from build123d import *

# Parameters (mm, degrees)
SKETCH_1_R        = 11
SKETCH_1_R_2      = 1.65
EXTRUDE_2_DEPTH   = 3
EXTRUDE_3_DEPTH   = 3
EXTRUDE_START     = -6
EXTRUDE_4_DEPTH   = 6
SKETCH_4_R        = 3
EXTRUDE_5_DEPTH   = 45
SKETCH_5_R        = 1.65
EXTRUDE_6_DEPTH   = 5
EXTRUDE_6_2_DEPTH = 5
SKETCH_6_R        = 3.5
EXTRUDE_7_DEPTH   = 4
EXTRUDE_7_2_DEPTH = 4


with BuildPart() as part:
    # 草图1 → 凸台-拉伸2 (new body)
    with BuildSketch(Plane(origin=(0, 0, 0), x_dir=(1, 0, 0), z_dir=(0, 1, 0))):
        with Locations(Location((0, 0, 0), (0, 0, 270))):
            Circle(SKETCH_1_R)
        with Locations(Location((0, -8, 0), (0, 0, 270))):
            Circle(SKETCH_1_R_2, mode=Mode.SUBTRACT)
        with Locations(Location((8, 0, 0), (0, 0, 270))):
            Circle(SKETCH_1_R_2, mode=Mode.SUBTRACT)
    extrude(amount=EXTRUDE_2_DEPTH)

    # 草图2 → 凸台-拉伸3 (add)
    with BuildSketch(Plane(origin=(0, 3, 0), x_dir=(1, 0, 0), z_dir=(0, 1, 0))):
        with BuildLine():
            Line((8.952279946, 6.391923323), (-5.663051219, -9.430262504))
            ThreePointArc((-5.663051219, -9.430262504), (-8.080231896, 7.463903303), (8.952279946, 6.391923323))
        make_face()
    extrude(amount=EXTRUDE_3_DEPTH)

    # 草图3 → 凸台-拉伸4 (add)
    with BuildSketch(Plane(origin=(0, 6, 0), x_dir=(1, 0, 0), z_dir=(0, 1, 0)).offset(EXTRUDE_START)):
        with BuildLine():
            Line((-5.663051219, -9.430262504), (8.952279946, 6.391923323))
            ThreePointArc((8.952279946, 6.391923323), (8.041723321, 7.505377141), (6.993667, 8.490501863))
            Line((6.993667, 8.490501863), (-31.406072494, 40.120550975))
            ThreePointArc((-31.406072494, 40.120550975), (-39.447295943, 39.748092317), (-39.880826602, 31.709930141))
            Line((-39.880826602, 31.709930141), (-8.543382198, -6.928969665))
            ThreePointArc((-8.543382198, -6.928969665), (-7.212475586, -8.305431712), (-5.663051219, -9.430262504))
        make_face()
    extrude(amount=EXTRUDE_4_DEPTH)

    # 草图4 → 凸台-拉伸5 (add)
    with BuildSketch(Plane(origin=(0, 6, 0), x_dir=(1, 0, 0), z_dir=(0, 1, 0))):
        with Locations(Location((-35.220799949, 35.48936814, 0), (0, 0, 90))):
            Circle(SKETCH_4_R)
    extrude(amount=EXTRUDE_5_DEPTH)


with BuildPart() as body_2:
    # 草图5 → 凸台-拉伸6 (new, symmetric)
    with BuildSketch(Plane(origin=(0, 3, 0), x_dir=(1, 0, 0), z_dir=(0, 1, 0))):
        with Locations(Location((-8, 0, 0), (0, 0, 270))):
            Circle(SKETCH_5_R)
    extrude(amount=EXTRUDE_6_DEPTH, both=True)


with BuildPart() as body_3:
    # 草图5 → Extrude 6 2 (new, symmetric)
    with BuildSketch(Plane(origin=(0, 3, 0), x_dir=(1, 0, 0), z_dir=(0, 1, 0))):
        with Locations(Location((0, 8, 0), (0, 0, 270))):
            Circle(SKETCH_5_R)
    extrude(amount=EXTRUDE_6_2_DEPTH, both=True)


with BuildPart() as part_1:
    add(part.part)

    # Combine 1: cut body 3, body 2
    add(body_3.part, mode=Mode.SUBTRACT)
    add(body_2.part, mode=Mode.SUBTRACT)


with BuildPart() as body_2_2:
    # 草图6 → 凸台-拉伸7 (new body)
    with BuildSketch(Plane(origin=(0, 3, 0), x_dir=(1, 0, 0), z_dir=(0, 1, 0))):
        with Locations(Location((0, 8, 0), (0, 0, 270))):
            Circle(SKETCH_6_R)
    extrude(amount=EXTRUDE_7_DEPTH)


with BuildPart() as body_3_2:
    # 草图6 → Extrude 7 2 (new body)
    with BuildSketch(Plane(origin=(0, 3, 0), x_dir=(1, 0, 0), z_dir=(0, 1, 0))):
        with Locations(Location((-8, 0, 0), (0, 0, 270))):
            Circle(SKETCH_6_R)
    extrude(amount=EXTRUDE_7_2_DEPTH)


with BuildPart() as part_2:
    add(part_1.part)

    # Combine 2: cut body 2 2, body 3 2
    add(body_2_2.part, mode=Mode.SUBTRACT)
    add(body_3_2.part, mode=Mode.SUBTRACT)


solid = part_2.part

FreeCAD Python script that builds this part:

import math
import FreeCAD as App
import Part
import Sketcher
from FreeCAD import Vector
Q = App.Units.Quantity

doc = App.newDocument("Part")
body = doc.addObject("PartDesign::Body", "Body")

# Sketch on XZ plane
sketch1 = body.newObject("Sketcher::SketchObject", "Sketch")
sketch1.AttachmentSupport = (doc.getObject("XZ_Plane"), [""])
sketch1.MapMode = "FlatFace"
sketch1.addGeometry([
    Part.Circle(Vector(0, 0, 0), Vector(0, 0, 1), 11),
    Part.Circle(Vector(0, 8, 0), Vector(0, 0, 1), 1.6),
    Part.Circle(Vector(8, 0, 0), Vector(0, 0, 1), 1.6),
], False)
sketch1.addConstraint([
    Sketcher.Constraint("Coincident", 0, 3, -1, 1),
    Sketcher.Constraint("Equal", 1, 2),
    Sketcher.Constraint("PointOnObject", 1, 3, -2),
    Sketcher.Constraint("PointOnObject", 2, 3, -1),
    Sketcher.Constraint("Diameter", 0, Q("22 mm")),
    Sketcher.Constraint("Diameter", 1, Q("3.3 mm")),
    Sketcher.Constraint("DistanceY", -1, 1, 1, 3, Q("8 mm")),
    Sketcher.Constraint("DistanceX", -1, 1, 2, 3, Q("8 mm")),
])
pad1 = body.newObject("PartDesign::Pad", "Pad")
pad1.Profile = sketch1
pad1.Length = 3
pad1.Reversed = True

# Sketch on XZ plane
sketch2 = body.newObject("Sketcher::SketchObject", "Sketch001")
sketch2.AttachmentSupport = (doc.getObject("XZ_Plane"), [""])
sketch2.MapMode = "FlatFace"
sketch2.AttachmentOffset = App.Placement(Vector(0, 0, -3), App.Rotation())
sketch2.addGeometry([
    Part.LineSegment(Vector(-6, 9, 0), Vector(9, -6, 0)),
    Part.ArcOfCircle(Part.Circle(Vector(0, 0, 0), Vector(0, 0, 1), 11), math.radians(121), math.radians(324)),
], False)
sketch2.addConstraint([
    Sketcher.Constraint("Coincident", 0, 1, 1, 1),
    Sketcher.Constraint("Coincident", 1, 2, 0, 2),
    Sketcher.Constraint("Coincident", 1, 3, -1, 1),
    Sketcher.Constraint("Radius", 1, Q("11 mm")),
    Sketcher.Constraint("DistanceX", 0, 1, -1, 1, Q("5.663051 mm")),
    Sketcher.Constraint("DistanceX", -1, 1, 1, 2, Q("8.95228 mm")),
])
pad2 = body.newObject("PartDesign::Pad", "Pad001")
pad2.Profile = sketch2
pad2.Length = 3
pad2.Reversed = True

# Sketch on XZ plane
sketch3 = body.newObject("Sketcher::SketchObject", "Sketch002")
sketch3.AttachmentSupport = (doc.getObject("XZ_Plane"), [""])
sketch3.MapMode = "FlatFace"
sketch3.addGeometry([
    Part.LineSegment(Vector(-5.7, 9.4, 0), Vector(9, -6.4, 0)),  # 0
    Part.ArcOfCircle(Part.Circle(Vector(0, 0, 0), Vector(0, 0, 1), 11), math.radians(-50.52), math.radians(-35.53)),  # 1
    Part.LineSegment(Vector(7, -8.5, 0), Vector(-31.4, -40.1, 0)),  # 2
    Part.ArcOfCircle(Part.Circle(Vector(-35.2, -35.5, 0), Vector(0, 0, 1), 6), math.radians(141), math.radians(309)),  # 3
    Part.LineSegment(Vector(-39.9, -31.7, 0), Vector(-8.5, 6.9, 0)),  # 4
    Part.ArcOfCircle(Part.Circle(Vector(0, 0, 0), Vector(0, 0, 1), 11), math.radians(120.99), math.radians(140.96)),  # 5
], False)
sketch3.addConstraint([
    Sketcher.Constraint("Coincident", 0, 2, 1, 2),
    Sketcher.Constraint("Tangent", 1, 1, 2, 1),
    Sketcher.Constraint("Tangent", 2, 2, 3, 2),
    Sketcher.Constraint("Tangent", 3, 1, 4, 1),
    Sketcher.Constraint("Tangent", 4, 2, 5, 2),
    Sketcher.Constraint("Coincident", 5, 1, 0, 1),
    Sketcher.Constraint("Coincident", 1, 3, -1, 1),
    Sketcher.Constraint("Coincident", 5, 3, -1, 1),
    Sketcher.Constraint("Equal", 1, 5),
    Sketcher.Constraint("Radius", 1, Q("11 mm")),
    Sketcher.Constraint("Radius", 3, Q("6 mm")),
    Sketcher.Constraint("DistanceX", 3, 3, -1, 1, Q("35.2208 mm")),
    Sketcher.Constraint("DistanceY", 1, 1, -1, 1, Q("8.490502 mm")),
    Sketcher.Constraint("DistanceX", -1, 1, 0, 2, Q("8.95228 mm")),
    Sketcher.Constraint("DistanceX", 5, 1, -1, 1, Q("5.663051 mm")),
])
pad3 = body.newObject("PartDesign::Pad", "Pad002")
pad3.Profile = sketch3
pad3.Length = 6
pad3.Reversed = True

# Sketch on XZ plane
sketch4 = body.newObject("Sketcher::SketchObject", "Sketch003")
sketch4.AttachmentSupport = (doc.getObject("XZ_Plane"), [""])
sketch4.MapMode = "FlatFace"
sketch4.AttachmentOffset = App.Placement(Vector(0, 0, -6), App.Rotation())
sketch4.addGeometry(Part.Circle(Vector(-35.2, -35.5, 0), Vector(0, 0, 1), 3), False)
sketch4.addConstraint([
    Sketcher.Constraint("Diameter", 0, Q("6 mm")),
    Sketcher.Constraint("DistanceX", 0, 3, -1, 1, Q("35.2208 mm")),
    Sketcher.Constraint("DistanceY", 0, 3, -1, 1, Q("35.489368 mm")),
])
pad4 = body.newObject("PartDesign::Pad", "Pad003")
pad4.Profile = sketch4
pad4.Length = 45
pad4.Reversed = True
body2 = doc.addObject("PartDesign::Body", "Body001")

# Sketch on XZ plane
sketch5 = body2.newObject("Sketcher::SketchObject", "Sketch004")
sketch5.AttachmentSupport = (doc.getObject("XZ_Plane001"), [""])
sketch5.MapMode = "FlatFace"
sketch5.AttachmentOffset = App.Placement(Vector(0, 0, -3), App.Rotation())
sketch5.addGeometry(Part.Circle(Vector(-8, 0, 0), Vector(0, 0, 1), 1.6), False)
sketch5.addConstraint([
    Sketcher.Constraint("PointOnObject", 0, 3, -1),
    Sketcher.Constraint("Diameter", 0, Q("3.3 mm")),
    Sketcher.Constraint("DistanceX", 0, 3, -1, 1, Q("8 mm")),
])
pad5 = body2.newObject("PartDesign::Pad", "Pad004")
pad5.Profile = sketch5
pad5.Length = 10
pad5.Midplane = True
body3 = doc.addObject("PartDesign::Body", "Body002")

# Sketch on XZ plane
sketch6 = body3.newObject("Sketcher::SketchObject", "Sketch005")
sketch6.AttachmentSupport = (doc.getObject("XZ_Plane002"), [""])
sketch6.MapMode = "FlatFace"
sketch6.AttachmentOffset = App.Placement(Vector(0, 0, -3), App.Rotation())
sketch6.addGeometry(Part.Circle(Vector(0, -8, 0), Vector(0, 0, 1), 1.6), False)
sketch6.addConstraint([
    Sketcher.Constraint("PointOnObject", 0, 3, -2),
    Sketcher.Constraint("Diameter", 0, Q("3.3 mm")),
    Sketcher.Constraint("DistanceY", 0, 3, -1, 1, Q("8 mm")),
])
pad6 = body3.newObject("PartDesign::Pad", "Pad005")
pad6.Profile = sketch6
pad6.Length = 10
pad6.Midplane = True
doc.recompute()

boolean = body.newObject("PartDesign::Boolean", "Boolean")
boolean.Type = "Cut"
boolean.addObjects([body3])
doc.recompute()

boolean2 = body.newObject("PartDesign::Boolean", "Boolean001")
boolean2.Type = "Cut"
boolean2.addObjects([body2])
body4 = doc.addObject("PartDesign::Body", "Body003")

# Sketch on XZ plane
sketch7 = body4.newObject("Sketcher::SketchObject", "Sketch006")
sketch7.AttachmentSupport = (doc.getObject("XZ_Plane003"), [""])
sketch7.MapMode = "FlatFace"
sketch7.AttachmentOffset = App.Placement(Vector(0, 0, -3), App.Rotation())
sketch7.addGeometry(Part.Circle(Vector(0, -8, 0), Vector(0, 0, 1), 3.5), False)
sketch7.addConstraint([
    Sketcher.Constraint("PointOnObject", 0, 3, -2),
    Sketcher.Constraint("Diameter", 0, Q("7 mm")),
    Sketcher.Constraint("DistanceY", 0, 3, -1, 1, Q("8 mm")),
])
pad7 = body4.newObject("PartDesign::Pad", "Pad006")
pad7.Profile = sketch7
pad7.Length = 4
pad7.Reversed = True
body5 = doc.addObject("PartDesign::Body", "Body004")

# Sketch on XZ plane
sketch8 = body5.newObject("Sketcher::SketchObject", "Sketch007")
sketch8.AttachmentSupport = (doc.getObject("XZ_Plane004"), [""])
sketch8.MapMode = "FlatFace"
sketch8.AttachmentOffset = App.Placement(Vector(0, 0, -3), App.Rotation())
sketch8.addGeometry(Part.Circle(Vector(-8, 0, 0), Vector(0, 0, 1), 3.5), False)
sketch8.addConstraint([
    Sketcher.Constraint("PointOnObject", 0, 3, -1),
    Sketcher.Constraint("Diameter", 0, Q("7 mm")),
    Sketcher.Constraint("DistanceX", 0, 3, -1, 1, Q("8 mm")),
])
pad8 = body5.newObject("PartDesign::Pad", "Pad007")
pad8.Profile = sketch8
pad8.Length = 4
pad8.Reversed = True
doc.recompute()

boolean3 = body.newObject("PartDesign::Boolean", "Boolean002")
boolean3.Type = "Cut"
boolean3.addObjects([body4])
doc.recompute()

boolean4 = body.newObject("PartDesign::Boolean", "Boolean003")
boolean4.Type = "Cut"
boolean4.addObjects([body5])

doc.recompute()
